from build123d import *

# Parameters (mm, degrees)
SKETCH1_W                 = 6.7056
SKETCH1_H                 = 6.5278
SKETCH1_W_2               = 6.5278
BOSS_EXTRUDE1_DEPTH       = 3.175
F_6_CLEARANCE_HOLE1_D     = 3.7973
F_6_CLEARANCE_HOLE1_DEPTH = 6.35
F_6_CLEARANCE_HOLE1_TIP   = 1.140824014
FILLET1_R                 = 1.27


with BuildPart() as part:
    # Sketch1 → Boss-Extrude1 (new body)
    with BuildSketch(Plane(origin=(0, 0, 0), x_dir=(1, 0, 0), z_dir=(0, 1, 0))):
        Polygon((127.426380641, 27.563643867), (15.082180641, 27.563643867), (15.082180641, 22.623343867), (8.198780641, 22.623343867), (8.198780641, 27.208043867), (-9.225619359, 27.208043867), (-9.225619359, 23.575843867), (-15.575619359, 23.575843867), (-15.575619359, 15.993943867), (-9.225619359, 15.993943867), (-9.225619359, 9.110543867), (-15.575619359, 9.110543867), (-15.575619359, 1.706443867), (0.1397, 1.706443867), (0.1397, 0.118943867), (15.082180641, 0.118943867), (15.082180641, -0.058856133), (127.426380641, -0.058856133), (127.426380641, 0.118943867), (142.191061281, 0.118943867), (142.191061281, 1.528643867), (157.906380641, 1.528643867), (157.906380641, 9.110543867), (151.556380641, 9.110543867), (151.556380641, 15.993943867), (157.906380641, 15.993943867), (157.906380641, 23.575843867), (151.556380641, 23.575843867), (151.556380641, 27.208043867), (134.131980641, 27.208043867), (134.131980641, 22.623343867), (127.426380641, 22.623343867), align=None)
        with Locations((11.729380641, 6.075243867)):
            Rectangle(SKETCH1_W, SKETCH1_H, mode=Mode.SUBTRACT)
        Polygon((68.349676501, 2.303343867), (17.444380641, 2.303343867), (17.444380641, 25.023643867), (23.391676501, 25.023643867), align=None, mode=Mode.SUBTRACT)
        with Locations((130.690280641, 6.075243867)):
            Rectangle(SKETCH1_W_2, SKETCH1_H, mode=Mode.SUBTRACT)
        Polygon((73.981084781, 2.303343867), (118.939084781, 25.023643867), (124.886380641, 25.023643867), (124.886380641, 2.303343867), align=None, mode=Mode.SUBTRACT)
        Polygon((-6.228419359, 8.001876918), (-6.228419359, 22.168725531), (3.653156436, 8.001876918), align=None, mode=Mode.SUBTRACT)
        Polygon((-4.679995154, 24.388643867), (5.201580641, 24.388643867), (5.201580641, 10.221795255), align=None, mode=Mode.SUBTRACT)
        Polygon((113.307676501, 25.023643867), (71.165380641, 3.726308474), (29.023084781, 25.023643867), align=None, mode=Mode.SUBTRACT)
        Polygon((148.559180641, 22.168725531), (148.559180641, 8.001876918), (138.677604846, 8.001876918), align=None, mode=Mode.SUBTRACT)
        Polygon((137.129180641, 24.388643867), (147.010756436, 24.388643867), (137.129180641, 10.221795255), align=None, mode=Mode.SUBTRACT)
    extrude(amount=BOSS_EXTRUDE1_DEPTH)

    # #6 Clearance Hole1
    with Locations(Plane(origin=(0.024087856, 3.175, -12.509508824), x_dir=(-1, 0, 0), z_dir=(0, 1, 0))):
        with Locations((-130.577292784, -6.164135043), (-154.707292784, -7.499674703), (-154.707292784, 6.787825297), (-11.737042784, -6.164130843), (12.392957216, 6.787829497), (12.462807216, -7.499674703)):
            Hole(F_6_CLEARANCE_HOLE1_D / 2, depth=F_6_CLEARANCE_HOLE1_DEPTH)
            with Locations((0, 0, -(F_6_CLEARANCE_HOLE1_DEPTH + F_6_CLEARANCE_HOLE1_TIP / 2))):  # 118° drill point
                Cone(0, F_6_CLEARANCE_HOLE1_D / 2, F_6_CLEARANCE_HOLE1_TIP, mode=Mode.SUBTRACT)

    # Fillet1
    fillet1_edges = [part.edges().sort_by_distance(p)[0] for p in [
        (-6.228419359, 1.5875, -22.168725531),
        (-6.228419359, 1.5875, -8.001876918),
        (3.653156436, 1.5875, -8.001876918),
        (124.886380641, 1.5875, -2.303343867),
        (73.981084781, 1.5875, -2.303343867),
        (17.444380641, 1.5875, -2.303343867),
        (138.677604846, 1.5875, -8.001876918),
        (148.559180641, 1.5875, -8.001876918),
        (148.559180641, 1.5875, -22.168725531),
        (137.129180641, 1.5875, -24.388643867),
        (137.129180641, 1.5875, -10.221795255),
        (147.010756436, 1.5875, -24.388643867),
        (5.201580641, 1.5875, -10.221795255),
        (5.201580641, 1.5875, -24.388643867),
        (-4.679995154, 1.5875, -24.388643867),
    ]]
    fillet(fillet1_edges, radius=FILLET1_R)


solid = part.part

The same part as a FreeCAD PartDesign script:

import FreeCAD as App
import Part
import Sketcher

V = App.Vector
Q = App.Units.Quantity


def edges_at(feature, points):
    """Names of the edges that pass closest to the given points."""
    edges = feature.Shape.Edges
    near = lambda p: min(range(len(edges)), key=lambda i: edges[i].distToShape(Part.Vertex(*p))[0])
    return sorted({f"Edge{near(p) + 1}" for p in points})


def add_polygon(sketch, points):
    """Adds a closed chain of lines whose ends are joined by coincident constraints."""
    first, n = sketch.GeometryCount, len(points)
    for a, b in zip(points, points[1:] + points[:1]):
        sketch.addGeometry(Part.LineSegment(App.Vector(*a, 0), App.Vector(*b, 0)), False)
    for i in range(n):
        sketch.addConstraint(Sketcher.Constraint("Coincident", first + i, 2, first + (i + 1) % n, 1))

doc = App.newDocument("Part")
params = doc.addObject("Spreadsheet::Sheet", "Params")
for row, (alias, value) in enumerate([
    ("sketch1_width", "0.25 in"),
    ("sketch1_width2", "4.423 in"),
    ("sketch1_width3", "0.271 in"),
    ("sketch1_width4", "0.686 in"),
    ("sketch1_width5", "0.264 in"),
    ("pad1_length", "0.125 in"),
    ("hole_diameter", "0.1495 in"),
    ("hole_depth", "0.25 in"),
    ("fillet_radius", "0.05 in"),
], start=1):
    params.set(f"A{row}", alias)
    params.set(f"B{row}", "=" + value)
    params.setAlias(f"B{row}", alias)

body = doc.addObject("PartDesign::Body", "Body")

sketch1 = body.newObject("Sketcher::SketchObject", "Sketch")
sketch1.AttachmentSupport = (doc.getObject("XZ_Plane"), [""])
sketch1.MapMode = "FlatFace"
add_polygon(sketch1, [(127.43, -27.56), (15.08, -27.56), (15.08, -22.62), (8.2, -22.62), (8.2, -27.21), (-9.23, -27.21), (-9.23, -23.58), (-15.58, -23.58), (-15.58, -15.99), (-9.23, -15.99), (-9.23, -9.11), (-15.58, -9.11), (-15.58, -1.71), (0.14, -1.71), (0.14, -0.12), (15.08, -0.12), (15.08, 0.06), (127.43, 0.06), (127.43, -0.12), (142.19, -0.12), (142.19, -1.53), (157.91, -1.53), (157.91, -9.11), (151.56, -9.11), (151.56, -15.99), (157.91, -15.99), (157.91, -23.58), (151.56, -23.58), (151.56, -27.21), (134.13, -27.21), (134.13, -22.62), (127.43, -22.62)])
add_polygon(sketch1, [(15.08, -2.81), (8.38, -2.81), (8.38, -9.34), (15.08, -9.34)])
add_polygon(sketch1, [(133.95, -2.81), (127.43, -2.81), (127.43, -9.34), (133.95, -9.34)])
add_polygon(sketch1, [(3.65, -8), (-6.23, -8), (-6.23, -22.17)])
add_polygon(sketch1, [(5.2, -10.22), (-4.68, -24.39), (5.2, -24.39)])
add_polygon(sketch1, [(23.39, -25.02), (68.35, -2.3), (17.44, -2.3), (17.44, -25.02)])
add_polygon(sketch1, [(29.02, -25.02), (113.31, -25.02), (71.17, -3.73)])
add_polygon(sketch1, [(124.89, -2.3), (73.98, -2.3), (118.94, -25.02), (124.89, -25.02)])
add_polygon(sketch1, [(138.68, -8), (148.56, -22.17), (148.56, -8)])
add_polygon(sketch1, [(137.13, -10.22), (137.13, -24.39), (147.01, -24.39)])
sketch1.addConstraint(Sketcher.Constraint("Horizontal", 0))
sketch1.addConstraint(Sketcher.Constraint("Vertical", 1))
sketch1.addConstraint(Sketcher.Constraint("Horizontal", 2))
sketch1.addConstraint(Sketcher.Constraint("Vertical", 3))
sketch1.addConstraint(Sketcher.Constraint("Horizontal", 4))
sketch1.addConstraint(Sketcher.Constraint("Vertical", 5))
sketch1.addConstraint(Sketcher.Constraint("Horizontal", 6))
sketch1.addConstraint(Sketcher.Constraint("Vertical", 7))
sketch1.addConstraint(Sketcher.Constraint("Horizontal", 8))
sketch1.addConstraint(Sketcher.Constraint("Vertical", 9))
sketch1.addConstraint(Sketcher.Constraint("Horizontal", 10))
sketch1.addConstraint(Sketcher.Constraint("Vertical", 11))
sketch1.addConstraint(Sketcher.Constraint("Horizontal", 12))
sketch1.addConstraint(Sketcher.Constraint("Vertical", 13))
sketch1.addConstraint(Sketcher.Constraint("Horizontal", 14))
sketch1.addConstraint(Sketcher.Constraint("Vertical", 15))
sketch1.addConstraint(Sketcher.Constraint("Horizontal", 16))
sketch1.addConstraint(Sketcher.Constraint("Vertical", 17))
sketch1.addConstraint(Sketcher.Constraint("Horizontal", 18))
sketch1.addConstraint(Sketcher.Constraint("Vertical", 19))
sketch1.addConstraint(Sketcher.Constraint("Horizontal", 20))
sketch1.addConstraint(Sketcher.Constraint("Vertical", 21))
sketch1.addConstraint(Sketcher.Constraint("Horizontal", 22))
sketch1.addConstraint(Sketcher.Constraint("Vertical", 23))
sketch1.addConstraint(Sketcher.Constraint("Horizontal", 24))
sketch1.addConstraint(Sketcher.Constraint("Vertical", 25))
sketch1.addConstraint(Sketcher.Constraint("Horizontal", 26))
sketch1.addConstraint(Sketcher.Constraint("Vertical", 27))
sketch1.addConstraint(Sketcher.Constraint("Horizontal", 28))
sketch1.addConstraint(Sketcher.Constraint("Vertical", 29))
sketch1.addConstraint(Sketcher.Constraint("Horizontal", 30))
sketch1.addConstraint(Sketcher.Constraint("Vertical", 31))
sketch1.addConstraint(Sketcher.Constraint("Horizontal", 32))
sketch1.addConstraint(Sketcher.Constraint("Vertical", 33))
sketch1.addConstraint(Sketcher.Constraint("Horizontal", 34))
sketch1.addConstraint(Sketcher.Constraint("Vertical", 35))
sketch1.addConstraint(Sketcher.Constraint("Horizontal", 36))
sketch1.addConstraint(Sketcher.Constraint("Vertical", 37))
sketch1.addConstraint(Sketcher.Constraint("Horizontal", 38))
sketch1.addConstraint(Sketcher.Constraint("Vertical", 39))
sketch1.addConstraint(Sketcher.Constraint("Horizontal", 40))
sketch1.addConstraint(Sketcher.Constraint("Vertical", 41))
sketch1.addConstraint(Sketcher.Constraint("Horizontal", 44))
sketch1.addConstraint(Sketcher.Constraint("Vertical", 45))
sketch1.addConstraint(Sketcher.Constraint("Horizontal", 47))
sketch1.addConstraint(Sketcher.Constraint("Vertical", 48))
sketch1.addConstraint(Sketcher.Constraint("Horizontal", 49))
sketch1.addConstraint(Sketcher.Constraint("Horizontal", 50))
sketch1.addConstraint(Sketcher.Constraint("Horizontal", 53))
sketch1.addConstraint(Sketcher.Constraint("Horizontal", 55))
sketch1.addConstraint(Sketcher.Constraint("Vertical", 56))
sketch1.addConstraint(Sketcher.Constraint("Vertical", 58))
sketch1.addConstraint(Sketcher.Constraint("Horizontal", 59))
sketch1.addConstraint(Sketcher.Constraint("Vertical", 60))
sketch1.addConstraint(Sketcher.Constraint("Horizontal", 61))
sketch1.addConstraint(Sketcher.Constraint("Parallel", 42, 43))
sketch1.addConstraint(Sketcher.Constraint("Parallel", 46, 52))
sketch1.addConstraint(Sketcher.Constraint("Parallel", 51, 54))
sketch1.addConstraint(Sketcher.Constraint("Parallel", 57, 62))
sketch1.addConstraint(Sketcher.Constraint("Horizontal", 14, 2, 17, 2))
sketch1.addConstraint(Sketcher.Constraint("Horizontal", 10, 2, 21, 2))
sketch1.addConstraint(Sketcher.Constraint("Horizontal", 8, 2, 23, 2))
sketch1.addConstraint(Sketcher.Constraint("Horizontal", 6, 2, 25, 2))
sketch1.addConstraint(Sketcher.Constraint("Horizontal", 4, 2, 27, 2))
sketch1.addConstraint(Sketcher.Constraint("Horizontal", 2, 2, 29, 2))
sketch1.addConstraint(Sketcher.Constraint("Horizontal", 35, 2, 36, 2))
sketch1.addConstraint(Sketcher.Constraint("Horizontal", 34, 2, 37, 2))
sketch1.addConstraint(Sketcher.Constraint("Horizontal", 49, 2, 50, 2))
sketch1.addConstraint(Sketcher.Constraint("Horizontal", 47, 2, 53, 2))
sketch1.addConstraint(Sketcher.Constraint("Horizontal", 52, 2, 54, 2))
sketch1.addConstraint(Sketcher.Constraint("Horizontal", 41, 2, 57, 2))
sketch1.addConstraint(Sketcher.Constraint("Horizontal", 42, 2, 58, 2))
sketch1.addConstraint(Sketcher.Constraint("Horizontal", 44, 2, 60, 2))
sketch1.addConstraint(Sketcher.Constraint("Horizontal", 45, 2, 62, 2))
sketch1.addConstraint(Sketcher.Constraint("Vertical", 5, 2, 8, 2))
sketch1.addConstraint(Sketcher.Constraint("Vertical", 7, 2, 10, 2))
sketch1.addConstraint(Sketcher.Constraint("Vertical", 1, 2, 14, 2))
sketch1.addConstraint(Sketcher.Constraint("Vertical", 21, 2, 24, 2))
sketch1.addConstraint(Sketcher.Constraint("Vertical", 23, 2, 26, 2))
sketch1.addConstraint(Sketcher.Constraint("Vertical", 17, 2, 30, 2))
sketch1.addConstraint(Sketcher.Constraint("Vertical", 15, 2, 34, 2))
sketch1.addConstraint(Sketcher.Constraint("Vertical", 31, 2, 36, 2))
sketch1.addConstraint(Sketcher.Constraint("Equal", 12, 20))
sketch1.addConstraint(Sketcher.Constraint("Equal", 10, 22))
sketch1.addConstraint(Sketcher.Constraint("Equal", 4, 28))
sketch1.addConstraint(Sketcher.Constraint("Equal", 30, 32))
sketch1.addConstraint(Sketcher.Constraint("Equal", 40, 44))
sketch1.addConstraint(Sketcher.Constraint("Equal", 47, 53))
sketch1.addConstraint(Sketcher.Constraint("Equal", 49, 55))
sketch1.addConstraint(Sketcher.Constraint("Equal", 44, 59))
sketch1.addConstraint(Sketcher.Constraint("Equal", 2, 9))
sketch1.addConstraint(Sketcher.Constraint("Equal", 7, 21))
sketch1.addConstraint(Sketcher.Constraint("Equal", 38, 33))
sketch1.addConstraint(Sketcher.Constraint("DistanceX", 6, 2, 6, 1, Q("0.25 in")))
sketch1.addConstraint(Sketcher.Constraint("DistanceX", 0, 2, 0, 1, Q("4.423 in")))
sketch1.addConstraint(Sketcher.Constraint("DistanceX", 2, 2, 2, 1, Q("0.271 in")))
sketch1.addConstraint(Sketcher.Constraint("DistanceX", 4, 2, 4, 1, Q("0.686 in")))
sketch1.addConstraint(Sketcher.Constraint("DistanceX", 30, 2, 30, 1, Q("0.264 in")))
sketch1.addConstraint(Sketcher.Constraint("DistanceX", 36, 2, 36, 1, Q("0.257 in")))
sketch1.addConstraint(Sketcher.Constraint("DistanceY", 5, 1, 5, 2, Q("0.143 in")))
sketch1.addConstraint(Sketcher.Constraint("DistanceY", 13, 1, 13, 2, Q("0.0625 in")))
sketch1.addConstraint(Sketcher.Constraint("DistanceY", 15, 1, 15, 2, Q("0.007 in")))
sketch1.addConstraint(Sketcher.Constraint("DistanceY", 1, 1, 1, 2, Q("0.1945 in")))
sketch1.addConstraint(Sketcher.Constraint("DistanceY", 3, 2, 3, 1, Q("0.1805 in")))
sketch1.addConstraint(Sketcher.Constraint("DistanceY", 7, 1, 7, 2, Q("0.2985 in")))
sketch1.addConstraint(Sketcher.Constraint("DistanceY", 11, 1, 11, 2, Q("0.2915 in")))
sketch1.addConstraint(Sketcher.Constraint("DistanceY", 48, 2, 48, 1, Q("0.8945 in")))
sketch1.addConstraint(Sketcher.Constraint("DistanceX", -1, 1, 12, 2, Q("0.0055 in")))
sketch1.addConstraint(Sketcher.Constraint("DistanceX", 12, 1, 12, 2, Q("15.715319 mm")))
sketch1.addConstraint(Sketcher.Constraint("DistanceX", 50, 1, 50, 2, Q("84.284592 mm")))
sketch1.addConstraint(Sketcher.Constraint("DistanceY", 41, 2, 41, 1, Q("14.166849 mm")))
sketch1.addConstraint(Sketcher.Constraint("Distance", 42, Q("17.27267 mm")))
sketch1.addConstraint(Sketcher.Constraint("DistanceX", 47, 2, 47, 1, Q("50.905296 mm")))
sketch1.addConstraint(Sketcher.Constraint("DistanceX", 49, 1, 49, 2, Q("5.947296 mm")))
sketch1.addConstraint(Sketcher.Constraint("DistanceX", 40, 2, -1, 1, Q("6.228419 mm")))
sketch1.addConstraint(Sketcher.Constraint("DistanceX", -1, 1, 44, 2, Q("5.201581 mm")))
sketch1.addConstraint(Sketcher.Constraint("DistanceX", -1, 1, 47, 2, Q("17.444381 mm")))
sketch1.addConstraint(Sketcher.Constraint("DistanceX", -1, 1, 51, 2, Q("71.165381 mm")))
sketch1.addConstraint(Sketcher.Constraint("DistanceY", 51, 2, -1, 1, Q("3.726308 mm")))
sketch1.addConstraint(Sketcher.Constraint("DistanceX", -1, 1, 55, 2, Q("124.886381 mm")))
sketch1.addConstraint(Sketcher.Constraint("DistanceX", -1, 1, 57, 2, Q("148.559181 mm")))
sketch1.addConstraint(Sketcher.Constraint("DistanceX", -1, 1, 60, 2, Q("137.129181 mm")))
sketch1.addConstraint(Sketcher.Constraint("DistanceY", 0, 2, -1, 1, Q("27.563644 mm")))
sketch1.addConstraint(Sketcher.Constraint("DistanceY", 32, 2, -1, 1, Q("2.811344 mm")))
sketch1.addConstraint(Sketcher.Constraint("DistanceY", 40, 2, -1, 1, Q("8.001877 mm")))
sketch1.addConstraint(Sketcher.Constraint("DistanceY", 43, 2, -1, 1, Q("24.388644 mm")))
sketch1.setExpression("Constraints[156]", "Params.sketch1_width")
sketch1.setExpression("Constraints[157]", "Params.sketch1_width2")
sketch1.setExpression("Constraints[158]", "Params.sketch1_width3")
sketch1.setExpression("Constraints[159]", "Params.sketch1_width4")
sketch1.setExpression("Constraints[160]", "Params.sketch1_width5")
pad1 = body.newObject("PartDesign::Pad", "Pad")
pad1.Profile = sketch1
pad1.setExpression("Length", "Params.pad1_length")
pad1.Reversed = True

sketch2 = body.newObject("Sketcher::SketchObject", "Sketch001")
sketch2.AttachmentSupport = (doc.getObject("XZ_Plane"), [""])
sketch2.MapMode = "FlatFace"
sketch2.AttachmentOffset = App.Placement(V(0, 0, -0.125 * 25.4), App.Rotation())
sketch2.addGeometry(Part.Circle(V(130.6, -18.7, 0), V(0, 0, 1), 1.9), False)
sketch2.addGeometry(Part.Circle(V(154.7, -20, 0), V(0, 0, 1), 1.9), False)
sketch2.addGeometry(Part.Circle(V(154.7, -5.7, 0), V(0, 0, 1), 1.9), False)
sketch2.addGeometry(Part.Circle(V(11.8, -18.7, 0), V(0, 0, 1), 1.9), False)
sketch2.addGeometry(Part.Circle(V(-12.4, -5.7, 0), V(0, 0, 1), 1.9), False)
sketch2.addGeometry(Part.Circle(V(-12.4, -20, 0), V(0, 0, 1), 1.9), False)
sketch2.addConstraint(Sketcher.Constraint("Equal", 0, 1))
sketch2.addConstraint(Sketcher.Constraint("Equal", 1, 2))
sketch2.addConstraint(Sketcher.Constraint("Equal", 2, 3))
sketch2.addConstraint(Sketcher.Constraint("Equal", 3, 4))
sketch2.addConstraint(Sketcher.Constraint("Equal", 4, 5))
sketch2.addConstraint(Sketcher.Constraint("Horizontal", 1, 3, 5, 3))
sketch2.addConstraint(Sketcher.Constraint("Vertical", 1, 3, 2, 3))
sketch2.addConstraint(Sketcher.Constraint("Diameter", 0, Q("0.1495 in")))
sketch2.addConstraint(Sketcher.Constraint("DistanceX", 0, 3, 1, 3, Q("0.95 in")))
sketch2.addConstraint(Sketcher.Constraint("DistanceX", 4, 3, 3, 3, Q("0.95 in")))
sketch2.addConstraint(Sketcher.Constraint("DistanceY", 1, 3, 2, 3, Q("0.5625 in")))
sketch2.addConstraint(Sketcher.Constraint("DistanceY", 1, 3, 4, 3, Q("0.5625002 in")))
sketch2.addConstraint(Sketcher.Constraint("DistanceX", 5, 3, 0, 3, Q("5.6315 in")))
sketch2.addConstraint(Sketcher.Constraint("DistanceX", -1, 1, 0, 3, Q("130.601381 mm")))
sketch2.addConstraint(Sketcher.Constraint("DistanceX", -1, 1, 3, 3, Q("11.761131 mm")))
sketch2.addConstraint(Sketcher.Constraint("DistanceY", 3, 3, -1, 1, Q("18.67364 mm")))
sketch2.addConstraint(Sketcher.Constraint("DistanceY", 4, 3, -1, 1, Q("5.721679 mm")))
sketch2.addConstraint(Sketcher.Constraint("DistanceY", 1, 3, 0, 3, Q("1.33554 mm")))
doc.recompute()
hole = body.newObject("PartDesign::Hole", "Hole")
hole.Profile = sketch2
hole.ThreadType = "None"
hole.setExpression("Diameter", "Params.hole_diameter")
hole.DepthType = "Dimension"
hole.setExpression("Depth", "Params.hole_depth")
hole.DrillPoint = "Angled"
hole.DrillPointAngle = 118
hole.Reversed = True
doc.recompute()

fillet = body.newObject("PartDesign::Fillet", "Fillet")
fillet.Base = (hole, edges_at(hole, [
    (-6.228, 1.587, -22.169),
    (-6.228, 1.587, -8.002),
    (3.653, 1.587, -8.002),
    (124.886, 1.587, -2.303),
    (73.981, 1.587, -2.303),
    (17.444, 1.587, -2.303),
    (138.678, 1.587, -8.002),
    (148.559, 1.587, -8.002),
    (148.559, 1.587, -22.169),
    (137.129, 1.587, -24.389),
    (137.129, 1.587, -10.222),
    (147.011, 1.587, -24.389),
    (5.202, 1.587, -10.222),
    (5.202, 1.587, -24.389),
    (-4.68, 1.587, -24.389),
]))
fillet.setExpression("Radius", "Params.fillet_radius")

doc.recompute()
